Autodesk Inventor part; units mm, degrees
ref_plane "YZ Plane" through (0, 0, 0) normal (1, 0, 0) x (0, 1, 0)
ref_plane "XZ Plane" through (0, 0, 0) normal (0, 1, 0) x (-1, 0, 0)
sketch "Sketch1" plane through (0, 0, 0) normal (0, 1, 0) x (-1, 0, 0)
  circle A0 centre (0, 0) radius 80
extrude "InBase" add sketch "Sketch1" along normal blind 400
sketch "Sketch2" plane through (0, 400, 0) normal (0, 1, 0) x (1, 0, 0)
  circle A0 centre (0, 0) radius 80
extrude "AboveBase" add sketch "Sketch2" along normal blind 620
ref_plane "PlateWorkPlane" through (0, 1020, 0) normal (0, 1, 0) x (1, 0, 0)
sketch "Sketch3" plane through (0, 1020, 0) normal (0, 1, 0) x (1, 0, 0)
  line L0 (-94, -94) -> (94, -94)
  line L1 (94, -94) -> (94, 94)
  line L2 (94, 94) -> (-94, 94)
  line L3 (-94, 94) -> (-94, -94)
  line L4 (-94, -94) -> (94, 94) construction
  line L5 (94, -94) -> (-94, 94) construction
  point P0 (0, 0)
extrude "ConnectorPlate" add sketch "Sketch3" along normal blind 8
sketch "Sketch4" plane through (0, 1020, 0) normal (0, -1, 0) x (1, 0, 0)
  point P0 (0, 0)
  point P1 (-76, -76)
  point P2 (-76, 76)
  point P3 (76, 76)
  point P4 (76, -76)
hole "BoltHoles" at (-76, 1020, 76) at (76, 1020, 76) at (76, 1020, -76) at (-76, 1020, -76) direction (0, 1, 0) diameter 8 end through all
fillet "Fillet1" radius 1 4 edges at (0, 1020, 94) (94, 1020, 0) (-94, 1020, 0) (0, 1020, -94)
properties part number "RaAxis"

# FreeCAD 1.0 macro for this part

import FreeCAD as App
import Part
import Sketcher
from FreeCAD import Vector
Q = App.Units.Quantity


def edges_at(feature, points):
    """Names of the edges that pass closest to the given points."""
    edges = feature.Shape.Edges
    near = lambda p: min(range(len(edges)), key=lambda i: edges[i].distToShape(Part.Vertex(*p))[0])
    return sorted({f"Edge{near(p) + 1}" for p in points})


def add_polygon(sketch, points):
    """Adds a closed chain of lines whose ends are joined by coincident constraints."""
    first, n = sketch.GeometryCount, len(points)
    for a, b in zip(points, points[1:] + points[:1]):
        sketch.addGeometry(Part.LineSegment(App.Vector(*a, 0), App.Vector(*b, 0)), False)
    for i in range(n):
        sketch.addConstraint(Sketcher.Constraint("Coincident", first + i, 2, first + (i + 1) % n, 1))

doc = App.newDocument("Part")
body = doc.addObject("PartDesign::Body", "Body")

# Sketch on XZ plane
sketch1 = doc.addObject("Sketcher::SketchObject", "Sketch")
body.addObject(sketch1)
sketch1.AttachmentSupport = (doc.XZ_Plane, [""])
sketch1.MapMode = "FlatFace"
sketch1.addGeometry(Part.Circle(Vector(0, 0, 0), Vector(0, 0, 1), 80), False)
sketch1.addConstraint([
    Sketcher.Constraint("Coincident", 0, 3, -1, 1),
    Sketcher.Constraint("Diameter", 0, Q("160 mm")),
])
pad1 = doc.addObject("PartDesign::Pad", "Pad")
body.addObject(pad1)
pad1.Profile = sketch1
pad1.Length = 400
pad1.Reversed = True

# Sketch on XZ plane
sketch2 = doc.addObject("Sketcher::SketchObject", "Sketch001")
body.addObject(sketch2)
sketch2.AttachmentSupport = (doc.XZ_Plane, [""])
sketch2.MapMode = "FlatFace"
sketch2.AttachmentOffset = App.Placement(Vector(0, 0, -400), App.Rotation())
sketch2.addGeometry(Part.Circle(Vector(0, 0, 0), Vector(0, 0, 1), 80), False)
sketch2.addConstraint([
    Sketcher.Constraint("Coincident", 0, 3, -1, 1),
    Sketcher.Constraint("Diameter", 0, Q("160 mm")),
])
pad2 = doc.addObject("PartDesign::Pad", "Pad001")
body.addObject(pad2)
pad2.Profile = sketch2
pad2.Length = 620
pad2.Reversed = True

# Sketch on XZ plane
sketch3 = doc.addObject("Sketcher::SketchObject", "Sketch002")
body.addObject(sketch3)
sketch3.AttachmentSupport = (doc.XZ_Plane, [""])
sketch3.MapMode = "FlatFace"
sketch3.AttachmentOffset = App.Placement(Vector(0, 0, -1020), App.Rotation())
add_polygon(sketch3, [(-94, -94), (-94, 94), (94, 94), (94, -94)])  # lines 0-3
sketch3.addConstraint([
    Sketcher.Constraint("Vertical", 0),
    Sketcher.Constraint("Horizontal", 1),
    Sketcher.Constraint("Vertical", 2),
    Sketcher.Constraint("Horizontal", 3),
    Sketcher.Constraint("Symmetric", 0, 2, 2, 2, -1, 1),
    Sketcher.Constraint("Equal", 3, 0),
    Sketcher.Constraint("DistanceX", 1, 1, 1, 2, Q("188 mm")),
])
pad3 = doc.addObject("PartDesign::Pad", "Pad002")
body.addObject(pad3)
pad3.Profile = sketch3
pad3.Length = 8
pad3.Reversed = True

# Sketch on XZ plane
sketch4 = doc.addObject("Sketcher::SketchObject", "Sketch003")
body.addObject(sketch4)
sketch4.AttachmentSupport = (doc.XZ_Plane, [""])
sketch4.MapMode = "FlatFace"
sketch4.AttachmentOffset = App.Placement(Vector(0, 0, -1020), App.Rotation())
sketch4.addGeometry([
    Part.Circle(Vector(-76, 76, 0), Vector(0, 0, 1), 4),
    Part.Circle(Vector(76, 76, 0), Vector(0, 0, 1), 4),
    Part.Circle(Vector(76, -76, 0), Vector(0, 0, 1), 4),
    Part.Circle(Vector(-76, -76, 0), Vector(0, 0, 1), 4),
], False)
sketch4.addConstraint([
    Sketcher.Constraint("Equal", 0, 1),
    Sketcher.Constraint("Equal", 1, 2),
    Sketcher.Constraint("Equal", 2, 3),
    Sketcher.Constraint("Symmetric", 0, 3, 2, 3, -1, 1),
    Sketcher.Constraint("Symmetric", 1, 3, 3, 3, -1, 1),
    Sketcher.Constraint("Symmetric", 0, 3, 1, 3, -2),
    Sketcher.Constraint("Diameter", 0, Q("8 mm")),
    Sketcher.Constraint("DistanceX", 0, 3, -1, 1, Q("76 mm")),
    Sketcher.Constraint("DistanceY", -1, 1, 0, 3, Q("76 mm")),
])
doc.recompute()
hole = doc.addObject("PartDesign::Hole", "Hole")
body.addObject(hole)
hole.Profile = sketch4
hole.ThreadType = "None"
hole.Diameter = 8
hole.DepthType = "ThroughAll"
doc.recompute()

fillet = doc.addObject("PartDesign::Fillet", "Fillet")
body.addObject(fillet)
fillet.Base = (hole, edges_at(hole, [
    (0, 1020, 94),
    (94, 1020, 0),
    (-94, 1020, 0),
    (0, 1020, -94),
]))
fillet.Radius = 1

doc.recompute()
